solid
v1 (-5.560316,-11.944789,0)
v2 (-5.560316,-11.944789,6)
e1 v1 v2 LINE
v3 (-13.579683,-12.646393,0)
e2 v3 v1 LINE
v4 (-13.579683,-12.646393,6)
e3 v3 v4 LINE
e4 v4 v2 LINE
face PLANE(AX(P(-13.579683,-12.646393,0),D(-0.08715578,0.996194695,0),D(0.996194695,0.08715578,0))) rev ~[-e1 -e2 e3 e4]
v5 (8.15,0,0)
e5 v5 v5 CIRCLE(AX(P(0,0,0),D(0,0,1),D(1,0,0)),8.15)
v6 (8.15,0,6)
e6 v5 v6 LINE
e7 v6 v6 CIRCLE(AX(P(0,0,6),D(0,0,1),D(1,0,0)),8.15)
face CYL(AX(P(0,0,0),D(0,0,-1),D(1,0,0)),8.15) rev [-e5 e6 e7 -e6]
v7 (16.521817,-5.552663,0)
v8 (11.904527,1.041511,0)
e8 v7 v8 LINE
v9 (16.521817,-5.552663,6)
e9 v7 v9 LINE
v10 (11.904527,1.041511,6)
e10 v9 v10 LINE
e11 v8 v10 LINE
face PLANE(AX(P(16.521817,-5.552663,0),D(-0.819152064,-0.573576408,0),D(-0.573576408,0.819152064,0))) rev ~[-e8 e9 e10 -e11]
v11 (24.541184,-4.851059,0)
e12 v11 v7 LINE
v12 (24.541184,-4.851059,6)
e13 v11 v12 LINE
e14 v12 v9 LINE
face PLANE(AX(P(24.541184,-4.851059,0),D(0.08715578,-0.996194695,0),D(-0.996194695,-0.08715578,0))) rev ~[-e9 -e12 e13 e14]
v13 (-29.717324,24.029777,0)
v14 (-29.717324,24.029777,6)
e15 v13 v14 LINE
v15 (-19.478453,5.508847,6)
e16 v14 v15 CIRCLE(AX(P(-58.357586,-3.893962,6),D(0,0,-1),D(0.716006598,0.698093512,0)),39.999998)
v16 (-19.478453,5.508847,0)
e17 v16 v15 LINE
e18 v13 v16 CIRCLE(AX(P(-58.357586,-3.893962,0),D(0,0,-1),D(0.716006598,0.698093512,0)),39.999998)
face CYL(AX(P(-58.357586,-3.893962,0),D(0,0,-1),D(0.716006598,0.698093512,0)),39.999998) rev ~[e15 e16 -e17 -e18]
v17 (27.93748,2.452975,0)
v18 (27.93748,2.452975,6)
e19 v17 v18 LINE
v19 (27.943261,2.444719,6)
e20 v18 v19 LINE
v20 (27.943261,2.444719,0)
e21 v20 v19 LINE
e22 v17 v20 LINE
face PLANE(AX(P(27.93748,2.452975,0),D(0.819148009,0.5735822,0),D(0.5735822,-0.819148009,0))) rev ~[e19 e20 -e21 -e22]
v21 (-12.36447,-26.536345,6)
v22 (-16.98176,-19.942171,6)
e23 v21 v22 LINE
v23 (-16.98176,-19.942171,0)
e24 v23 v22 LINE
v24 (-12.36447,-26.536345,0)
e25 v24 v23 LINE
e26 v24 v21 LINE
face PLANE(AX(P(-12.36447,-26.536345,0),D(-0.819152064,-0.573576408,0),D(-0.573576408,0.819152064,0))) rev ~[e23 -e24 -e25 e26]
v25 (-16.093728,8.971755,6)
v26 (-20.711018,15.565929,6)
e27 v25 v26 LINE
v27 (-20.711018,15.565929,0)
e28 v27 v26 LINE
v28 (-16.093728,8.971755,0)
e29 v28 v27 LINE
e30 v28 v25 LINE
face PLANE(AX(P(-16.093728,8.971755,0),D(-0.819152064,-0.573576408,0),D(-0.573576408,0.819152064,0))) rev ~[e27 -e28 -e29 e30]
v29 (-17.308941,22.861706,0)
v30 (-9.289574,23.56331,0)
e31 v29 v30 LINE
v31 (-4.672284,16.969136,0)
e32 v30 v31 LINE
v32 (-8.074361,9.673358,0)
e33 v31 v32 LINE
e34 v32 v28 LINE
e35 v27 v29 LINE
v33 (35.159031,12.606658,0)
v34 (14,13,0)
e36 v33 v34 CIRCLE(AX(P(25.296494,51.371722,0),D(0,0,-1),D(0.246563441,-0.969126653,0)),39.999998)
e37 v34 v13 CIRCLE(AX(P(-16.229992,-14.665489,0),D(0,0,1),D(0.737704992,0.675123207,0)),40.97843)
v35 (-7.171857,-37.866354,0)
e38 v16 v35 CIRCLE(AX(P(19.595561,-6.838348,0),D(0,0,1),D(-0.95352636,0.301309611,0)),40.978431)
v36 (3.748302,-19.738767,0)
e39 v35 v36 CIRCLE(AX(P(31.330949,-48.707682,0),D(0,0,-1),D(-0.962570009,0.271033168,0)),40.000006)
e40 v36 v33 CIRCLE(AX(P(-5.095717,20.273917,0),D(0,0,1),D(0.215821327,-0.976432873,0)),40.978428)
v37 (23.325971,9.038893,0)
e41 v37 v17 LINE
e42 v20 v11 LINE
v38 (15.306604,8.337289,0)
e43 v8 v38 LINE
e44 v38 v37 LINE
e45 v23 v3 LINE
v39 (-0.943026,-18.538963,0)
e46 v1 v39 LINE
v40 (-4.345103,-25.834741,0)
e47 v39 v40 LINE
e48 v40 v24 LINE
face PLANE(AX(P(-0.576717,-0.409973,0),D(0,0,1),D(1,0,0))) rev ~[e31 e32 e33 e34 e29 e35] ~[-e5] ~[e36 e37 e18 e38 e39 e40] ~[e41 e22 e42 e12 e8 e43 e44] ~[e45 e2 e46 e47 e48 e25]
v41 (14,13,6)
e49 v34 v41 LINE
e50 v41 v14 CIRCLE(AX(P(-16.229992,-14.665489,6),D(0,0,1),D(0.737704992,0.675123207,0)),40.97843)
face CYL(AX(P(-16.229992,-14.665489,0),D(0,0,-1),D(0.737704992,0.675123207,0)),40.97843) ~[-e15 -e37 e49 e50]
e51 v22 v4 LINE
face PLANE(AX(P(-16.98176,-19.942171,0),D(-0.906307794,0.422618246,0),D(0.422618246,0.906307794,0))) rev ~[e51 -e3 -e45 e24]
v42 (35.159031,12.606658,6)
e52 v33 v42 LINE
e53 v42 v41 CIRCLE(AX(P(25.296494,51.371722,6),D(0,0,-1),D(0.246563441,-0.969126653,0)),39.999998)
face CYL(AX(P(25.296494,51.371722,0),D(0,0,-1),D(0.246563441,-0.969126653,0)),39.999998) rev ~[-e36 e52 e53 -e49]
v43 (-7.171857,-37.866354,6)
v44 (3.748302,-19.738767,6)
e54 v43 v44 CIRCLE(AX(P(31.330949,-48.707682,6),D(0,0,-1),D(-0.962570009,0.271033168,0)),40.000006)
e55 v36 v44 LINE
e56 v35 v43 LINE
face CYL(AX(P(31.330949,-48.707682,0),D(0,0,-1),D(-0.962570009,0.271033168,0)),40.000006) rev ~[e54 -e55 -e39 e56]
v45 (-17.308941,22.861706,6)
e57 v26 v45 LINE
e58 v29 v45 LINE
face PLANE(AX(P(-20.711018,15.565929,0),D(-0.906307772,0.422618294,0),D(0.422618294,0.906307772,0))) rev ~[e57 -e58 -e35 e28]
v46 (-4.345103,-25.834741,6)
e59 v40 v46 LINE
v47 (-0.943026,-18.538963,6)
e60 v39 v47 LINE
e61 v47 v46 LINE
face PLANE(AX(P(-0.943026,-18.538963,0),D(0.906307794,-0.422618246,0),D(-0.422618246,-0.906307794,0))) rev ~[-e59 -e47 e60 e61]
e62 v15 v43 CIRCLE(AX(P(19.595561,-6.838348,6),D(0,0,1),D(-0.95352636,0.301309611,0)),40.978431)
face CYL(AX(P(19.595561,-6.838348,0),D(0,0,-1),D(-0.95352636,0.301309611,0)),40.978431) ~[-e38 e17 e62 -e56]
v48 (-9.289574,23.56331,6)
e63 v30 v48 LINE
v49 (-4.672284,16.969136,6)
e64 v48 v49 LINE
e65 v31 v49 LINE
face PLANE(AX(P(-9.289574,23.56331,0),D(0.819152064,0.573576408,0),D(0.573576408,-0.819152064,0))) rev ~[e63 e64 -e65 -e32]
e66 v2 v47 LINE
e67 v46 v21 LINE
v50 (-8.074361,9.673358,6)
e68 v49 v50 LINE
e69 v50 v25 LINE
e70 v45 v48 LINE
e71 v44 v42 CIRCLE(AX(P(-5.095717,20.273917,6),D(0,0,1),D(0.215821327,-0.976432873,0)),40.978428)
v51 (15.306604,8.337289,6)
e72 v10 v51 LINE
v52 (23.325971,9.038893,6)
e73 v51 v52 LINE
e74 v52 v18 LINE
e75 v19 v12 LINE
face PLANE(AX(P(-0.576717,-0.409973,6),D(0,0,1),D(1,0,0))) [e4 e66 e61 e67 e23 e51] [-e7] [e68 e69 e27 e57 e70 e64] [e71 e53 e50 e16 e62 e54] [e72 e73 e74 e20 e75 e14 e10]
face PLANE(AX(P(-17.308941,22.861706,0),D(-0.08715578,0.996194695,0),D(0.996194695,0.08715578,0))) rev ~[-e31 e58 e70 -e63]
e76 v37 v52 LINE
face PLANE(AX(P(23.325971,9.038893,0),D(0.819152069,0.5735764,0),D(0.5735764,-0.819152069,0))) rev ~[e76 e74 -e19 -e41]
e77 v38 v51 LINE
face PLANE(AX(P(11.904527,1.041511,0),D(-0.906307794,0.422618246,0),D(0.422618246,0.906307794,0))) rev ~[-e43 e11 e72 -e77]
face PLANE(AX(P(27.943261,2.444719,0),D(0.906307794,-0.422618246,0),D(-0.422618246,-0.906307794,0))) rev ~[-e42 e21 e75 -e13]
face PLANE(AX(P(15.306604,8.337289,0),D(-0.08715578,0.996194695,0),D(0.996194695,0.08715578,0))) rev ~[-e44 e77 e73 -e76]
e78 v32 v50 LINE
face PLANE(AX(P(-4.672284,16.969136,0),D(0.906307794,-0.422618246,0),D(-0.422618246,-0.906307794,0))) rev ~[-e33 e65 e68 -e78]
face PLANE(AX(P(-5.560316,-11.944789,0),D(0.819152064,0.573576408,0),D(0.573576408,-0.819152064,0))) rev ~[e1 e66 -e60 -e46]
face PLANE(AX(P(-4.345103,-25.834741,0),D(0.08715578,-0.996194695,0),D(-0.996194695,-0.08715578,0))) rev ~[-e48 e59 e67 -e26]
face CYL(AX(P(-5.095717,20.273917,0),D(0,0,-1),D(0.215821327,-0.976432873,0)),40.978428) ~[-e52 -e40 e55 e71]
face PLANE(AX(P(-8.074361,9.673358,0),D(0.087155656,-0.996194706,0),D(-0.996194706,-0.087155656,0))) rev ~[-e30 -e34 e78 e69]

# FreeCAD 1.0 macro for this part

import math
import FreeCAD as App
import Part
import Sketcher
Q = App.Units.Quantity


def add_polygon(sketch, points):
    """Adds a closed chain of lines whose ends are joined by coincident constraints."""
    first, n = sketch.GeometryCount, len(points)
    for a, b in zip(points, points[1:] + points[:1]):
        sketch.addGeometry(Part.LineSegment(App.Vector(*a, 0), App.Vector(*b, 0)), False)
    for i in range(n):
        sketch.addConstraint(Sketcher.Constraint("Coincident", first + i, 2, first + (i + 1) % n, 1))

doc = App.newDocument("Part")
body = doc.addObject("PartDesign::Body", "Body")

# Sketch on XY plane
sketch1 = body.newObject("Sketcher::SketchObject", "Sketch")
sketch1.AttachmentSupport = (doc.getObject("XY_Plane"), [""])
sketch1.MapMode = "FlatFace"
sketch1.addGeometry(Part.ArcOfCircle(Part.Circle(App.Vector(25.296494, 51.371722, 0), App.Vector(0, 0, 1), 39.999998), math.radians(-106.404235), math.radians(-75.725753)), False)  # 0
sketch1.addGeometry(Part.ArcOfCircle(Part.Circle(App.Vector(-16.229992, -14.665489, 0), App.Vector(0, 0, 1), 40.97843), math.radians(42.463719), math.radians(109.216128)), False)  # 1
sketch1.addGeometry(Part.ArcOfCircle(Part.Circle(App.Vector(-58.357586, -3.893962, 0), App.Vector(0, 0, 1), 39.999998), math.radians(13.595763), math.radians(44.274246)), False)  # 2
sketch1.addGeometry(Part.ArcOfCircle(Part.Circle(App.Vector(19.595561, -6.838348, 0), App.Vector(0, 0, 1), 40.978431), math.radians(162.463722), math.radians(229.216128)), False)  # 3
sketch1.addGeometry(Part.ArcOfCircle(Part.Circle(App.Vector(31.330949, -48.707682, 0), App.Vector(0, 0, 1), 40.000006), math.radians(133.59577), math.radians(164.274244)), False)  # 4
sketch1.addGeometry(Part.ArcOfCircle(Part.Circle(App.Vector(-5.095717, 20.273917, 0), App.Vector(0, 0, 1), 40.978428), math.radians(-77.536283), math.radians(-10.78387)), False)  # 5
add_polygon(sketch1, [(-13.579683, -12.646393), (-5.560316, -11.944789), (-0.943026, -18.538963), (-4.345103, -25.834741), (-12.36447, -26.536345), (-16.98176, -19.942171)])  # lines 6-11
sketch1.addGeometry(Part.Circle(App.Vector(0, 0, 0), App.Vector(0, 0, 1), 8.15), False)  # 12
add_polygon(sketch1, [(-4.672284, 16.969136), (-8.074361, 9.673358), (-16.093728, 8.971755), (-20.711018, 15.565929), (-17.308941, 22.861706), (-9.289574, 23.56331)])  # lines 13-18
add_polygon(sketch1, [(24.541184, -4.851059), (16.521817, -5.552663), (11.904527, 1.041511), (15.306604, 8.337289), (23.325971, 9.038893), (27.93748, 2.452975), (27.943261, 2.444719)])  # lines 19-25
sketch1.addConstraint([
    Sketcher.Constraint("Coincident", 0, 1, 1, 1),
    Sketcher.Constraint("Coincident", 1, 2, 2, 2),
    Sketcher.Constraint("Coincident", 2, 1, 3, 1),
    Sketcher.Constraint("Coincident", 3, 2, 4, 2),
    Sketcher.Constraint("Coincident", 4, 1, 5, 1),
    Sketcher.Constraint("Coincident", 5, 2, 0, 2),
    Sketcher.Constraint("Coincident", 12, 3, -1, 1),
    Sketcher.Constraint("Equal", 0, 2),
    Sketcher.Constraint("Equal", 1, 3),
    Sketcher.Constraint("Equal", 1, 5),
    Sketcher.Constraint("Parallel", 6, 9),
    Sketcher.Constraint("Parallel", 7, 10),
    Sketcher.Constraint("Parallel", 8, 11),
    Sketcher.Constraint("Parallel", 11, 13),
    Sketcher.Constraint("Parallel", 9, 14),
    Sketcher.Constraint("Parallel", 10, 15),
    Sketcher.Constraint("Parallel", 13, 16),
    Sketcher.Constraint("Parallel", 14, 17),
    Sketcher.Constraint("Parallel", 15, 18),
    Sketcher.Constraint("Parallel", 17, 19),
    Sketcher.Constraint("Parallel", 18, 20),
    Sketcher.Constraint("Parallel", 16, 21),
    Sketcher.Constraint("Parallel", 19, 22),
    Sketcher.Constraint("Parallel", 20, 23),
    Sketcher.Constraint("Parallel", 21, 25),
    Sketcher.Constraint("Equal", 6, 7),
    Sketcher.Constraint("Equal", 7, 8),
    Sketcher.Constraint("Equal", 8, 9),
    Sketcher.Constraint("Equal", 11, 13),
    Sketcher.Constraint("Equal", 13, 14),
    Sketcher.Constraint("Equal", 14, 15),
    Sketcher.Constraint("Equal", 15, 16),
    Sketcher.Constraint("Equal", 18, 19),
    Sketcher.Constraint("Equal", 19, 20),
    Sketcher.Constraint("Equal", 20, 21),
    Sketcher.Constraint("Equal", 21, 22),
    Sketcher.Constraint("Equal", 22, 25),
    Sketcher.Constraint("Diameter", 12, Q("16.3 mm")),
    Sketcher.Constraint("Angle", 6, Q("5.000002 deg")),
    Sketcher.Constraint("Angle", 7, Q("-55.000002 deg")),
    Sketcher.Constraint("Angle", 8, Q("-114.999999 deg")),
    Sketcher.Constraint("DistanceX", -1, 1, 0, 1, Q("14 mm")),
    Sketcher.Constraint("DistanceY", -1, 1, 0, 1, Q("13 mm")),
    Sketcher.Constraint("Distance", 6, Q("8.05 mm")),
    Sketcher.Constraint("Radius", 1, Q("40.97843 mm")),
    Sketcher.Constraint("Radius", 0, Q("39.999998 mm")),
    Sketcher.Constraint("Radius", 4, Q("40.000006 mm")),
    Sketcher.Constraint("DistanceY", 4, 3, 5, 3, Q("68.9816 mm")),
    Sketcher.Constraint("DistanceY", 3, 2, 2, 1, Q("43.375201 mm")),
    Sketcher.Constraint("DistanceY", 1, 3, 6, 2, Q("2.7207 mm")),
    Sketcher.Constraint("DistanceX", 15, 2, 5, 3, Q("15.615301 mm")),
    Sketcher.Constraint("DistanceY", 7, 2, 19, 2, Q("12.9863 mm")),
    Sketcher.Constraint("DistanceX", 3, 3, 24, 2, Q("8.3477 mm")),
    Sketcher.Constraint("Distance", 23, Q("8.039921 mm")),
    Sketcher.Constraint("DistanceY", -1, 1, 0, 3, Q("51.371722 mm")),
    Sketcher.Constraint("DistanceY", 1, 3, -1, 1, Q("14.665489 mm")),
    Sketcher.Constraint("DistanceX", -1, 1, 3, 3, Q("19.595561 mm")),
    Sketcher.Constraint("DistanceY", 3, 3, -1, 1, Q("6.838348 mm")),
    Sketcher.Constraint("DistanceX", -1, 1, 4, 3, Q("31.330949 mm")),
    Sketcher.Constraint("DistanceX", -1, 1, 5, 2, Q("35.159031 mm")),
    Sketcher.Constraint("DistanceX", 9, 2, -1, 1, Q("12.36447 mm")),
    Sketcher.Constraint("DistanceX", 13, 2, -1, 1, Q("8.074361 mm")),
    Sketcher.Constraint("DistanceY", -1, 1, 15, 2, Q("15.565929 mm")),
    Sketcher.Constraint("DistanceX", 2, 3, 0, 3, Q("83.65408 mm")),
])
pad1 = body.newObject("PartDesign::Pad", "Pad")
pad1.Profile = sketch1
pad1.Length = 6

doc.recompute()
